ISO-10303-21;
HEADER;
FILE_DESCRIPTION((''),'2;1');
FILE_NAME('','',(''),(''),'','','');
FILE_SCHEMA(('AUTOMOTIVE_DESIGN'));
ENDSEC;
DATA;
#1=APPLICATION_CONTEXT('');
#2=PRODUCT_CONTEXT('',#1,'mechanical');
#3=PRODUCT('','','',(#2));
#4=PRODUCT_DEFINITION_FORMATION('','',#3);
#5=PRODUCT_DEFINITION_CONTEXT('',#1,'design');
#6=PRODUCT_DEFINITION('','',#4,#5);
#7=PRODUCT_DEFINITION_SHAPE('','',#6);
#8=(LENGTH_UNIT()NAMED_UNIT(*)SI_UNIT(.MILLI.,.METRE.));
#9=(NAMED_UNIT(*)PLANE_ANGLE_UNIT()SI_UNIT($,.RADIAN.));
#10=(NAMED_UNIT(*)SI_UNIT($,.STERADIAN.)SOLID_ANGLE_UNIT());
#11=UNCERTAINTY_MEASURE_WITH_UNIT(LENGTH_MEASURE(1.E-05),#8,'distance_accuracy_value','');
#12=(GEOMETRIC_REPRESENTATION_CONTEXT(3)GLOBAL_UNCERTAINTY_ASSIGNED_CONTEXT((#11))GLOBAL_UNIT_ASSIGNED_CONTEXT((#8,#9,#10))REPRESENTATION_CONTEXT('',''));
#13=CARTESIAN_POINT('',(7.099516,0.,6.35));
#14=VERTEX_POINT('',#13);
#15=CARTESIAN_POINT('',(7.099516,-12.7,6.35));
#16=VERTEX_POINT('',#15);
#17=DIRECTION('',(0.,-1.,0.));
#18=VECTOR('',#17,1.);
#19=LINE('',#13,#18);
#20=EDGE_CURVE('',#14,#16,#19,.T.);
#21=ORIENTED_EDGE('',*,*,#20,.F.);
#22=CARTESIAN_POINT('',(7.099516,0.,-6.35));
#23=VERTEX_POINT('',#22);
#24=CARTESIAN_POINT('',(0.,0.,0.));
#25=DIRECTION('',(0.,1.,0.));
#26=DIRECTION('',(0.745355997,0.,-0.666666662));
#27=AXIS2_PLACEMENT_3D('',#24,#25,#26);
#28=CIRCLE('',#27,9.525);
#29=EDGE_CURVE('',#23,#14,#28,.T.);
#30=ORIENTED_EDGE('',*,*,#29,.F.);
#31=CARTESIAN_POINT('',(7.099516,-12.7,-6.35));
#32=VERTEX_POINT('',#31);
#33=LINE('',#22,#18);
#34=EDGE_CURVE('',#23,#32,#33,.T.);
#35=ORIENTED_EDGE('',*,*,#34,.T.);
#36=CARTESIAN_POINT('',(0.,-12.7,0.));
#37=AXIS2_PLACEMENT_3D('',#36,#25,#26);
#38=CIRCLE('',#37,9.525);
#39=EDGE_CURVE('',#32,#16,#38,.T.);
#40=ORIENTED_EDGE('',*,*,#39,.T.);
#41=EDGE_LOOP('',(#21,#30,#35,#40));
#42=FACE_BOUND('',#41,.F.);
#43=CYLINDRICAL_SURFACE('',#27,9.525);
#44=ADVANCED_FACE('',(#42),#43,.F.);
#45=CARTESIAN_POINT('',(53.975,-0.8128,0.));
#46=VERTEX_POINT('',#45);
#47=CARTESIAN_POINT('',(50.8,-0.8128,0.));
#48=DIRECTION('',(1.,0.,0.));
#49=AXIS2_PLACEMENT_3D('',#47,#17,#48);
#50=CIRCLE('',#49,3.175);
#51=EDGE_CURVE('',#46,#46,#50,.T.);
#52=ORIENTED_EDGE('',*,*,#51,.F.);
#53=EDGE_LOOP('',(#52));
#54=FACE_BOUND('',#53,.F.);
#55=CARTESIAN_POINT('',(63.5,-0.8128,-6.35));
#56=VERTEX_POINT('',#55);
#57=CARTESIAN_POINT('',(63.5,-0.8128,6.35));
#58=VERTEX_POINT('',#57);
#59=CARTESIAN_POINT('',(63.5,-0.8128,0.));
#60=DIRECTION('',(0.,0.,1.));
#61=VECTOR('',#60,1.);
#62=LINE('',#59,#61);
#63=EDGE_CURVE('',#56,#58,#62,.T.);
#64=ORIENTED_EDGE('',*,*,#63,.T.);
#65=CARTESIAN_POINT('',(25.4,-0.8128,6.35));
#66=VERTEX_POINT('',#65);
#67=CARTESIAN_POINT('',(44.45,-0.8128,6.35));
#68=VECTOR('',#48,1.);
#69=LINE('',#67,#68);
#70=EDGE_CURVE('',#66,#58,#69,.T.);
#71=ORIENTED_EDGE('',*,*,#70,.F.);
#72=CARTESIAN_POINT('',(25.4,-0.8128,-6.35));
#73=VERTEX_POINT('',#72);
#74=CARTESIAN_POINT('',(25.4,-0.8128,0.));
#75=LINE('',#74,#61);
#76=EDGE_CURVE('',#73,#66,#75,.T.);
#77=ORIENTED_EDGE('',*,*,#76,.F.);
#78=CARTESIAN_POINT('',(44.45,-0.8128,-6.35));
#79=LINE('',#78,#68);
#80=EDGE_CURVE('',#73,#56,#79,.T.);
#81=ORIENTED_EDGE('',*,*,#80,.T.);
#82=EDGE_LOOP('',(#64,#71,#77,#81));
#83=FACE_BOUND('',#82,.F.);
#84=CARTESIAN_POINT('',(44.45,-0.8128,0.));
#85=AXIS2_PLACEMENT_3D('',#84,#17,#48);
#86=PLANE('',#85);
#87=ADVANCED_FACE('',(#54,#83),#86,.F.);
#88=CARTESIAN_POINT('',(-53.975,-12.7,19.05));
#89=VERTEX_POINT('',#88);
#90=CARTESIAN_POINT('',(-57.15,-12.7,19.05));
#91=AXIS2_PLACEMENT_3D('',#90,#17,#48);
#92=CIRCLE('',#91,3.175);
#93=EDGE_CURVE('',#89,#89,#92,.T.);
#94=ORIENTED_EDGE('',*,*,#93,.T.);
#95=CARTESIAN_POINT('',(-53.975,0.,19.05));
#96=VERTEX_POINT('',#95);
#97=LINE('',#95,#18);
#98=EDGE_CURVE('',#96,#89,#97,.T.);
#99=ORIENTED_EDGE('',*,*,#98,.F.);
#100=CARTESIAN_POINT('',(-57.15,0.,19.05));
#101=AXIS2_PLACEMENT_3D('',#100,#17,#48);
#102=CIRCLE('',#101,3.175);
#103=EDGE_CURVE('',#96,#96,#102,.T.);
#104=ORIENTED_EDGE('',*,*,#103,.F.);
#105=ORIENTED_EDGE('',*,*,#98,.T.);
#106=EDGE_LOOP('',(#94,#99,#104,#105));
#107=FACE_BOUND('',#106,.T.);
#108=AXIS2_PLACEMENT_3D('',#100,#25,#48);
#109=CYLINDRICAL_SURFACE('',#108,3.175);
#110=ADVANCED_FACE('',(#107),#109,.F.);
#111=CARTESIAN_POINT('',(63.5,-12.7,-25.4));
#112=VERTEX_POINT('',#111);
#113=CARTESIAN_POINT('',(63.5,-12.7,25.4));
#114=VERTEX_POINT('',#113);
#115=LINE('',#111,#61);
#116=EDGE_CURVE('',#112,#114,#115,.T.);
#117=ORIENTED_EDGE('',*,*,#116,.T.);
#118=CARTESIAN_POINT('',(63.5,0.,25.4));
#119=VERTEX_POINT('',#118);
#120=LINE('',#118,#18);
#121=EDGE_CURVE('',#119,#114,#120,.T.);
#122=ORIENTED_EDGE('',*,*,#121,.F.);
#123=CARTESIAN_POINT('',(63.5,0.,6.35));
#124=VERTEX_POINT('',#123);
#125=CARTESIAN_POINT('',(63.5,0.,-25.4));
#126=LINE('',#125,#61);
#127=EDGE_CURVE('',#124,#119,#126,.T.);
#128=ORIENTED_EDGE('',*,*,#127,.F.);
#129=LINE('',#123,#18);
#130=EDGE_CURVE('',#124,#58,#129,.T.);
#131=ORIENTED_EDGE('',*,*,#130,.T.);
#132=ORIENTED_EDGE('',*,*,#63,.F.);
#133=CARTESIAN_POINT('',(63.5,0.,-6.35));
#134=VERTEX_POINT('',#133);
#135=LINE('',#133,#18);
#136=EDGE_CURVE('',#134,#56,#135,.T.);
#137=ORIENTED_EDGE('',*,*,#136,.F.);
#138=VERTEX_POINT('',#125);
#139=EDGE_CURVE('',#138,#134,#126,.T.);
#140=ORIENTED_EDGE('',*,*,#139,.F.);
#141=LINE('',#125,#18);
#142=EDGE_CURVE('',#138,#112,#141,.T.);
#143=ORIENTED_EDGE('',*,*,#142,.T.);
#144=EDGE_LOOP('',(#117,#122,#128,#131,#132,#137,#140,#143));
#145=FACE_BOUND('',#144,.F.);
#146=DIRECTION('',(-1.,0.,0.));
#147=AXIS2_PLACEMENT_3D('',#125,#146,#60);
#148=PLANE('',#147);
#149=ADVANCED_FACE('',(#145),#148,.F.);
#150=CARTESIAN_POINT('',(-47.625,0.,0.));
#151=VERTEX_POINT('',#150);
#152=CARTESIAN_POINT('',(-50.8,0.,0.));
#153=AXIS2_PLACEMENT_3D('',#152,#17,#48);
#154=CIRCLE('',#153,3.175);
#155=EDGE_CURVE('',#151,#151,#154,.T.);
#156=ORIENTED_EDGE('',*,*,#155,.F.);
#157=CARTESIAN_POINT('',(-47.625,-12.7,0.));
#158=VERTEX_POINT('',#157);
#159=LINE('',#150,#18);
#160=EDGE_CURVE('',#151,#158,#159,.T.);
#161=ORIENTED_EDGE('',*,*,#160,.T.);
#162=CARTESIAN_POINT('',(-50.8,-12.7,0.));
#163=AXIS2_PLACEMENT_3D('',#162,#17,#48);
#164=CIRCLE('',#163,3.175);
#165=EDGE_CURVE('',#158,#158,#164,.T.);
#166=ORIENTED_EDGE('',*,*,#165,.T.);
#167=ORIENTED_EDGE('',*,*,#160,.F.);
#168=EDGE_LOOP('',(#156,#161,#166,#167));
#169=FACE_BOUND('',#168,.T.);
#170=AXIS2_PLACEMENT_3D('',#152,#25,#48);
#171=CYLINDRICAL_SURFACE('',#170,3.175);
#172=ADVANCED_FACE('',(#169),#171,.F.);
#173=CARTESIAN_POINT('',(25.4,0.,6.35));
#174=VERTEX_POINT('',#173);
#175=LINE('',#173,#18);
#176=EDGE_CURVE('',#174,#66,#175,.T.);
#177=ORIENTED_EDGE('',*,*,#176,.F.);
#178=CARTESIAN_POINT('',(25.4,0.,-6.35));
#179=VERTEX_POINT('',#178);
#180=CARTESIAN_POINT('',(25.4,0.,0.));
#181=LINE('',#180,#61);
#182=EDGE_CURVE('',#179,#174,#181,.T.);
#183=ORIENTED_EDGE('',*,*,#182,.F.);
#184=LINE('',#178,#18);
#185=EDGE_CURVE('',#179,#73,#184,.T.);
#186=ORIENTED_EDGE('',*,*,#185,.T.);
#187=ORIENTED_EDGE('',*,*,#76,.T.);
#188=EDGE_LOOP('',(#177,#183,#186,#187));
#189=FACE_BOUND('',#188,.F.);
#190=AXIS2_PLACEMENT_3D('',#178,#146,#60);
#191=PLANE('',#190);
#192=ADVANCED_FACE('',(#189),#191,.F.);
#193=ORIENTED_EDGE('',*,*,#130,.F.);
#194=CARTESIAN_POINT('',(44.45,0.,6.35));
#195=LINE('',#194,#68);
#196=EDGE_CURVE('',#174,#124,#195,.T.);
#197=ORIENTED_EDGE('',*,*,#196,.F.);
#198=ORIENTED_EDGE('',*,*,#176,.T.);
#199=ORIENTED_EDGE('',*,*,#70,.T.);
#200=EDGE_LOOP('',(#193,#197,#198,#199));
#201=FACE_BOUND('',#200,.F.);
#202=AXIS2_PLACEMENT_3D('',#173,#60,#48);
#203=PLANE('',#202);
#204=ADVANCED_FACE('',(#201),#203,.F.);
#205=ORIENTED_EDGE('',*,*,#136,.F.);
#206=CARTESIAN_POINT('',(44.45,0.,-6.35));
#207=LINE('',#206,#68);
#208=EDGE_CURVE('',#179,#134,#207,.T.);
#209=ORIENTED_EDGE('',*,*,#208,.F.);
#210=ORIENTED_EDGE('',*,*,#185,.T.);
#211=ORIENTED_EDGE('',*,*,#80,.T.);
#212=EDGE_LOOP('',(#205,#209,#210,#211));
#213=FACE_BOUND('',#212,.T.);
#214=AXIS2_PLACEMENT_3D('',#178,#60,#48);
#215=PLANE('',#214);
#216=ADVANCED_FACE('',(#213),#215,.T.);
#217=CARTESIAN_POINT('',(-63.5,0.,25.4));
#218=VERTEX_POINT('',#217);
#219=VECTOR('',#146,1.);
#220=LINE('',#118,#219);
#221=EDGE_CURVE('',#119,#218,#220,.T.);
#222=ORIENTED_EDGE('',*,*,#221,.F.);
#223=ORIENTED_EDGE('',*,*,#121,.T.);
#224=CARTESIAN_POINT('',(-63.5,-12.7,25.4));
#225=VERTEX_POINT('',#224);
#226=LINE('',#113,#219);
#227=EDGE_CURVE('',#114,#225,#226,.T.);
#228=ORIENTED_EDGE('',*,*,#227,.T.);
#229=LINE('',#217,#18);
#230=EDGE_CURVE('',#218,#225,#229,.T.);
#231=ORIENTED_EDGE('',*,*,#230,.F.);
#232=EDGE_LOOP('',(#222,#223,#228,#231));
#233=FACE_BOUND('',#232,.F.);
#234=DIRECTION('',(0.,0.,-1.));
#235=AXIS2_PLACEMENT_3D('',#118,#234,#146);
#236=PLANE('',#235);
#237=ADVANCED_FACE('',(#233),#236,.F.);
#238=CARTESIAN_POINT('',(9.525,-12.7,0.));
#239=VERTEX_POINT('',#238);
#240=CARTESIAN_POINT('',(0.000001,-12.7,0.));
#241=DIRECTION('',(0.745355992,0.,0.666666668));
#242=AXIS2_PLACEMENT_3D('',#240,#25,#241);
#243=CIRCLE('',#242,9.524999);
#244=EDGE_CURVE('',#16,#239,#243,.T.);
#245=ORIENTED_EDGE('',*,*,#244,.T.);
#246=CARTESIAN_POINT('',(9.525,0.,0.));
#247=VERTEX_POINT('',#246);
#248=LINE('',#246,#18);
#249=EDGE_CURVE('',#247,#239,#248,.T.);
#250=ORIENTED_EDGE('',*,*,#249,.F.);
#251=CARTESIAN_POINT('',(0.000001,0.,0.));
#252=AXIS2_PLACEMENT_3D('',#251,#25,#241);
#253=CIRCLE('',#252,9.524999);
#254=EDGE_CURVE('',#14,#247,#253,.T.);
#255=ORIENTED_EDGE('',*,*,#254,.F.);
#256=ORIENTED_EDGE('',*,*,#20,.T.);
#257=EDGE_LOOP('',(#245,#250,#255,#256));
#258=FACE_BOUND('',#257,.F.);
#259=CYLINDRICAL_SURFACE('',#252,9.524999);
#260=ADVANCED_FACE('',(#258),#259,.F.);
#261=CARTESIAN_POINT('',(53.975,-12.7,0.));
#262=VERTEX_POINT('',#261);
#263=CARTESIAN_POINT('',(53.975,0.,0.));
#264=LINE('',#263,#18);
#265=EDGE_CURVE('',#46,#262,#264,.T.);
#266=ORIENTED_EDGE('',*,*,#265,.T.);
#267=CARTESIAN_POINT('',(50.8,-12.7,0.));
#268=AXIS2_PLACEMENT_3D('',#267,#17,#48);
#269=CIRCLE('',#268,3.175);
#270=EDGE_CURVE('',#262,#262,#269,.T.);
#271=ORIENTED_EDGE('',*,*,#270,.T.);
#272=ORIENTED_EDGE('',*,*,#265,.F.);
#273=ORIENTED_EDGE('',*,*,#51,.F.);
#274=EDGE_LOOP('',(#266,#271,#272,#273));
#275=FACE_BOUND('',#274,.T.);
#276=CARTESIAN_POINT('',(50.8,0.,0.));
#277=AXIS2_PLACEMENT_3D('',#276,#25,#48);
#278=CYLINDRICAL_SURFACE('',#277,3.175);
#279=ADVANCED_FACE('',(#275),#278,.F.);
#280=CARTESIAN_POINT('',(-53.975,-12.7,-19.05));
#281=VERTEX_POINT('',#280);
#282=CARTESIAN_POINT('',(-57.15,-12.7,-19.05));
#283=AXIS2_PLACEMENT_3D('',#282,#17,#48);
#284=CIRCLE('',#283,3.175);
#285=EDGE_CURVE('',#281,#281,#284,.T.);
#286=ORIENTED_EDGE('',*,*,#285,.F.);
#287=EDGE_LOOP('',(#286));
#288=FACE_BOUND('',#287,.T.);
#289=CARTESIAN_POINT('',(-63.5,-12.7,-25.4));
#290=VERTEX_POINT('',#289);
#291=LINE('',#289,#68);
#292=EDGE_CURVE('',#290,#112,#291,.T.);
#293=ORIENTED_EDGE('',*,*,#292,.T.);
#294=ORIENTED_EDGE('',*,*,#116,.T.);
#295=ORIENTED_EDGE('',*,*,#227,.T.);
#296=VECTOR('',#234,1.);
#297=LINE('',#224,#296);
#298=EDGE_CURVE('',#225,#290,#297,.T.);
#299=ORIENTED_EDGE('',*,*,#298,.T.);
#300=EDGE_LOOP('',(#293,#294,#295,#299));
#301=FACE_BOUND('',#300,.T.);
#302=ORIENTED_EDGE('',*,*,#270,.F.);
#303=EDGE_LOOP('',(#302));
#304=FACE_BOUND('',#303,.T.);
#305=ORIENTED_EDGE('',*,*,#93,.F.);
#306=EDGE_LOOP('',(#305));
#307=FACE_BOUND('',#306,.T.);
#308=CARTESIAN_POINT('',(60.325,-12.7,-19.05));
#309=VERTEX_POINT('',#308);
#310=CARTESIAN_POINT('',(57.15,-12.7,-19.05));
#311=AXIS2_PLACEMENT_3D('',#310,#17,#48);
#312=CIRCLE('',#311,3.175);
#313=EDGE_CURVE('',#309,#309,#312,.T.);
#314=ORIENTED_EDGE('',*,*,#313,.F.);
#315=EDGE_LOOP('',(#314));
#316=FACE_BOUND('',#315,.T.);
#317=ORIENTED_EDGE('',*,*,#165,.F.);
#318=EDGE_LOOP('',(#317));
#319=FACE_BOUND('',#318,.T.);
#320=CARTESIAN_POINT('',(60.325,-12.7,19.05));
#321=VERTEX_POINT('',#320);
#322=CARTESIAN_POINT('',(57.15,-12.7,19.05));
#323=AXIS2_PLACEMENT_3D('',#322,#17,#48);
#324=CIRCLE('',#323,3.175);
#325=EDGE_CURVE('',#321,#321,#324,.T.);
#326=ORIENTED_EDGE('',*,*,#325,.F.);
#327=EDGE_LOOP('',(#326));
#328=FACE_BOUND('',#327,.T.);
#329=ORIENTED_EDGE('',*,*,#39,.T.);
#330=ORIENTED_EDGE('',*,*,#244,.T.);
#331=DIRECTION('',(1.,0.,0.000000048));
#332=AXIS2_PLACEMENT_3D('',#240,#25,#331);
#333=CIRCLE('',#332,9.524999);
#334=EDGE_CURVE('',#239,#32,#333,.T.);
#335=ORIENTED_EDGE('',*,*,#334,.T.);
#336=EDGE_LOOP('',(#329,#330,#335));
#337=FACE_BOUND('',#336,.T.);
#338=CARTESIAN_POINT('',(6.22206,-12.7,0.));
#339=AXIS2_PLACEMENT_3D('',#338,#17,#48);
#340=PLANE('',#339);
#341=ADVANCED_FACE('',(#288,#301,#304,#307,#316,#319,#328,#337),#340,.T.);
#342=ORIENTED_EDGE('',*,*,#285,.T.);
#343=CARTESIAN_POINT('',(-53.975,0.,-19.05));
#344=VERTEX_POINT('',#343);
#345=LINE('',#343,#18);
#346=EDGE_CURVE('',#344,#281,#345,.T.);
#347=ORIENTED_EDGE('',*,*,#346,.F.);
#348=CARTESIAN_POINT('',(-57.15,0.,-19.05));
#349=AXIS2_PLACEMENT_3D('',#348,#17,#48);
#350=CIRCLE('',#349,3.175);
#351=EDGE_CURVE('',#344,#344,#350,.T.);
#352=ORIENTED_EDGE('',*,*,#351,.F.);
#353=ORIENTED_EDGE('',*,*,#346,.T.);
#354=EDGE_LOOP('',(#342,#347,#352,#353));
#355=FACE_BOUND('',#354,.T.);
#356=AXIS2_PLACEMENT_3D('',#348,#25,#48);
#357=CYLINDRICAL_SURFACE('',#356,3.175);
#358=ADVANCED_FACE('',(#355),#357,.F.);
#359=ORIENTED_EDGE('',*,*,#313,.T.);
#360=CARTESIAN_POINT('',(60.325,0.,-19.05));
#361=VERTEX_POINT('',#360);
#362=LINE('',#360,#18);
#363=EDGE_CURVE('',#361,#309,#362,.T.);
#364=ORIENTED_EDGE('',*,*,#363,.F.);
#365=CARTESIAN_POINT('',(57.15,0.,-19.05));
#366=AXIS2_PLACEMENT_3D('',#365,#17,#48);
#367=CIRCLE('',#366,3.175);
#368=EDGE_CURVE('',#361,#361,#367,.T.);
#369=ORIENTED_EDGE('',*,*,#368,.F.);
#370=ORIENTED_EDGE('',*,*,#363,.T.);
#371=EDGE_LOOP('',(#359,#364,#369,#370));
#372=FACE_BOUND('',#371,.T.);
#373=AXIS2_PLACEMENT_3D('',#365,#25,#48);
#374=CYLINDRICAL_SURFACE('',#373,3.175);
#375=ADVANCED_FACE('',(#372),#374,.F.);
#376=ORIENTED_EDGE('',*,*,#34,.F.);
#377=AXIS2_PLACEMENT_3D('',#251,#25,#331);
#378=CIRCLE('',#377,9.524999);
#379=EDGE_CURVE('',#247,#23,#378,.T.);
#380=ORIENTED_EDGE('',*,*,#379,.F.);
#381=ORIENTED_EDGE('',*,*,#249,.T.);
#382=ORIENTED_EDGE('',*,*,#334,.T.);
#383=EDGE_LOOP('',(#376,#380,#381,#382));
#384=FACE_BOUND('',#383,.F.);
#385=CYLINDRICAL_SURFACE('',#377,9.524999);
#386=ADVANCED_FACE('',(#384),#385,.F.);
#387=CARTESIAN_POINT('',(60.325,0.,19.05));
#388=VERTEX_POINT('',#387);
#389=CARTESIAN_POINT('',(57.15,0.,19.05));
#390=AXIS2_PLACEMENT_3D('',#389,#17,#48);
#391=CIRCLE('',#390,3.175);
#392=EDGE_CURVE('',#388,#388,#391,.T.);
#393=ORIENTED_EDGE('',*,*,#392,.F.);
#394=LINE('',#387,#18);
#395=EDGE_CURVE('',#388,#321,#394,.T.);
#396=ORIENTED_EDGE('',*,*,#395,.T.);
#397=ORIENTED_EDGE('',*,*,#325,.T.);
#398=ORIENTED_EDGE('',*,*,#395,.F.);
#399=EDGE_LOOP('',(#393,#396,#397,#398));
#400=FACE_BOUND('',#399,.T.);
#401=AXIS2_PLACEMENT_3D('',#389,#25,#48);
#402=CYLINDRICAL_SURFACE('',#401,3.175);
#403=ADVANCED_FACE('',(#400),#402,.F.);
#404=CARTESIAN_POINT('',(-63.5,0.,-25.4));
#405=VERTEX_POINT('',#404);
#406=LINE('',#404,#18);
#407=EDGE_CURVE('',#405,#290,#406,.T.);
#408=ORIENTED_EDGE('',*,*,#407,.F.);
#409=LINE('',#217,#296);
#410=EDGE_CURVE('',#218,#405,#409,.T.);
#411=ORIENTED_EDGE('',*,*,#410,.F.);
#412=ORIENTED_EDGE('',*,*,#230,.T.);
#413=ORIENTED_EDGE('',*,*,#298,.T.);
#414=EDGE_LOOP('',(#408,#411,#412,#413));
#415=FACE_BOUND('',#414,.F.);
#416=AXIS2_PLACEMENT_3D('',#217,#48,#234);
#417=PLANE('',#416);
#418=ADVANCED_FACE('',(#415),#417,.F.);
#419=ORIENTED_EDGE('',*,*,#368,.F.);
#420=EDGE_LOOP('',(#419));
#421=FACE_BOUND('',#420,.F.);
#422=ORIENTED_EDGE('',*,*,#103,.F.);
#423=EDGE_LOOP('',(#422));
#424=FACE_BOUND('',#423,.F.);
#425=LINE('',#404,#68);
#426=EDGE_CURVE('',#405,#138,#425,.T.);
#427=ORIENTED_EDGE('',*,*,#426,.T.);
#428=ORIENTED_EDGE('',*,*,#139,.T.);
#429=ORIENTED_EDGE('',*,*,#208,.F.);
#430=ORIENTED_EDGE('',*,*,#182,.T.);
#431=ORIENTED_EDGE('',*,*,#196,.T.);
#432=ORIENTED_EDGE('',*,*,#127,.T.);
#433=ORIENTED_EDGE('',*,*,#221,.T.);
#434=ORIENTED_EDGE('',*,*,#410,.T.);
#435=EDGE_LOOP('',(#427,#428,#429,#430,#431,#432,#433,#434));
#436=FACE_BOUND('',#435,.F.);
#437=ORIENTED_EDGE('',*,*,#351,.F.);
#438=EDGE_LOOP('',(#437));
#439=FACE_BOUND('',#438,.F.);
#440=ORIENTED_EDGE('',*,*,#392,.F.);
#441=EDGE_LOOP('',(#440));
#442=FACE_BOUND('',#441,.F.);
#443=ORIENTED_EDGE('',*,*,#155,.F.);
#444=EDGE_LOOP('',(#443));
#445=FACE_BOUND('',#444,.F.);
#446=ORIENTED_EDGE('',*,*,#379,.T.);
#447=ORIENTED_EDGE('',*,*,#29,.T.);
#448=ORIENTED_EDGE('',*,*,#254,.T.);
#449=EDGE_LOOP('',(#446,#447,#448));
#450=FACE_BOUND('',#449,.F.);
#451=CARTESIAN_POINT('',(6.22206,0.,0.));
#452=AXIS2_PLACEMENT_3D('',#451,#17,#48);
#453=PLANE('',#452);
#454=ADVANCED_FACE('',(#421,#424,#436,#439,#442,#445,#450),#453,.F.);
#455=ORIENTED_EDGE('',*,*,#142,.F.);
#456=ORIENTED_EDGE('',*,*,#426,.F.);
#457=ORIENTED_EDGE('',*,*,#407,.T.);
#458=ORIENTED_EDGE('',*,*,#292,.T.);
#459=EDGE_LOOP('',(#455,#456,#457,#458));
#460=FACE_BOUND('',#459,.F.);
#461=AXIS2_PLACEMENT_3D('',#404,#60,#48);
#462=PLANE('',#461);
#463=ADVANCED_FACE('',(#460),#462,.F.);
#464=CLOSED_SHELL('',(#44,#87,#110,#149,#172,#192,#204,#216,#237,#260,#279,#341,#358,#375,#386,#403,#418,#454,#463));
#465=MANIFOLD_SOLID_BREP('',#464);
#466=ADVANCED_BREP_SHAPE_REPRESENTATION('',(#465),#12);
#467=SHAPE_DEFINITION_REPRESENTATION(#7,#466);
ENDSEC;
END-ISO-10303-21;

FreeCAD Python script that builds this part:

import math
import FreeCAD as App
import Part
import Sketcher
from FreeCAD import Vector
Q = App.Units.Quantity


def add_polygon(sketch, points):
    """Adds a closed chain of lines whose ends are joined by coincident constraints."""
    first, n = sketch.GeometryCount, len(points)
    for a, b in zip(points, points[1:] + points[:1]):
        sketch.addGeometry(Part.LineSegment(App.Vector(*a, 0), App.Vector(*b, 0)), False)
    for i in range(n):
        sketch.addConstraint(Sketcher.Constraint("Coincident", first + i, 2, first + (i + 1) % n, 1))

doc = App.newDocument("Part")
body = doc.addObject("PartDesign::Body", "Body")

# Sketch on XZ plane
sketch1 = body.newObject("Sketcher::SketchObject", "Sketch")
sketch1.AttachmentSupport = (doc.getObject("XZ_Plane"), [""])
sketch1.MapMode = "FlatFace"
add_polygon(sketch1, [(63.5, 25.4), (-63.5, 25.4), (-63.5, -25.4), (63.5, -25.4)])  # lines 0-3
sketch1.addGeometry(Part.Circle(Vector(-57.1, -19.1, 0), Vector(0, 0, 1), 3.2), False)  # 4
sketch1.addGeometry(Part.Circle(Vector(57.1, -19.1, 0), Vector(0, 0, 1), 3.2), False)  # 5
sketch1.addGeometry(Part.Circle(Vector(-50.8, 0, 0), Vector(0, 0, 1), 3.2), False)  # 6
sketch1.addGeometry(Part.Circle(Vector(-57.1, 19.1, 0), Vector(0, 0, 1), 3.2), False)  # 7
sketch1.addGeometry(Part.ArcOfCircle(Part.Circle(Vector(0, 0, 0), Vector(0, 0, 1), 9.5), math.radians(42), math.radians(318)), False)  # 8
sketch1.addGeometry(Part.ArcOfCircle(Part.Circle(Vector(0, 0, 0), Vector(0, 0, 1), 9.5), math.radians(0), math.radians(42)), False)  # 9
sketch1.addGeometry(Part.ArcOfCircle(Part.Circle(Vector(0, 0, 0), Vector(0, 0, 1), 9.5), math.radians(-42), math.radians(0)), False)  # 10
sketch1.addGeometry(Part.Circle(Vector(50.8, 0, 0), Vector(0, 0, 1), 3.2), False)  # 11
sketch1.addGeometry(Part.Circle(Vector(57.1, 19.1, 0), Vector(0, 0, 1), 3.2), False)  # 12
sketch1.addConstraint([
    Sketcher.Constraint("Tangent", 8, 1, 9, 2),
    Sketcher.Constraint("Tangent", 9, 1, 10, 2),
    Sketcher.Constraint("Tangent", 10, 1, 8, 2),
    Sketcher.Constraint("Horizontal", 0),
    Sketcher.Constraint("Vertical", 1),
    Sketcher.Constraint("Horizontal", 2),
    Sketcher.Constraint("Vertical", 3),
    Sketcher.Constraint("Coincident", 8, 3, -1, 1),
    Sketcher.Constraint("Equal", 4, 5),
    Sketcher.Constraint("Equal", 5, 6),
    Sketcher.Constraint("Equal", 6, 7),
    Sketcher.Constraint("Equal", 7, 11),
    Sketcher.Constraint("Equal", 11, 12),
    Sketcher.Constraint("Symmetric", 5, 3, 7, 3, -1, 1),
    Sketcher.Constraint("Symmetric", 6, 3, 11, 3, -1, 1),
    Sketcher.Constraint("Symmetric", 4, 3, 12, 3, -1, 1),
    Sketcher.Constraint("Symmetric", 0, 2, 2, 2, -1, 1),
    Sketcher.Constraint("Symmetric", 4, 3, 5, 3, -2),
    Sketcher.Constraint("PointOnObject", 6, 3, -1),
    Sketcher.Constraint("PointOnObject", 9, 1, -1),
    Sketcher.Constraint("Vertical", 8, 1, 10, 1),
    Sketcher.Constraint("Diameter", 4, Q("0.25 in")),
    Sketcher.Constraint("DistanceX", 0, 2, 0, 1, Q("5 in")),
    Sketcher.Constraint("DistanceY", 1, 2, 1, 1, Q("2 in")),
    Sketcher.Constraint("DistanceX", 6, 3, -1, 1, Q("2 in")),
    Sketcher.Constraint("Radius", 8, Q("0.375 in")),
    Sketcher.Constraint("DistanceX", 4, 3, 5, 3, Q("4.5 in")),
    Sketcher.Constraint("DistanceY", 4, 3, 7, 3, Q("1.5 in")),
    Sketcher.Constraint("DistanceY", 8, 1, 12, 3, Q("0.5 in")),
])
pad1 = body.newObject("PartDesign::Pad", "Pad")
pad1.Profile = sketch1
pad1.Length = Q("0.5 in")

# Sketch on XZ plane
sketch2 = body.newObject("Sketcher::SketchObject", "Sketch001")
sketch2.AttachmentSupport = (doc.getObject("XZ_Plane"), [""])
sketch2.MapMode = "FlatFace"
add_polygon(sketch2, [(25.4, 6.3), (25.4, -6.3), (63.5, -6.3), (63.5, 6.3)])  # lines 0-3
sketch2.addGeometry(Part.Circle(Vector(50.8, 0, 0), Vector(0, 0, 1), 3.2), False)  # 4
sketch2.addConstraint([
    Sketcher.Constraint("Vertical", 0),
    Sketcher.Constraint("Horizontal", 1),
    Sketcher.Constraint("Vertical", 2),
    Sketcher.Constraint("Horizontal", 3),
    Sketcher.Constraint("PointOnObject", 4, 3, -1),
    Sketcher.Constraint("Diameter", 4, Q("0.25 in")),
    Sketcher.Constraint("DistanceX", 1, 1, 1, 2, Q("1.5 in")),
    Sketcher.Constraint("DistanceY", 0, 2, 0, 1, Q("0.5 in")),
    Sketcher.Constraint("DistanceX", -1, 1, 4, 3, Q("2 in")),
    Sketcher.Constraint("DistanceX", -1, 1, 0, 2, Q("1 in")),
    Sketcher.Constraint("DistanceY", 0, 2, -1, 1, Q("0.25 in")),
])
pocket1 = body.newObject("PartDesign::Pocket", "Pocket")
pocket1.Profile = sketch2
pocket1.Length = Q("0.032 in")
pocket1.Reversed = True

doc.recompute()
